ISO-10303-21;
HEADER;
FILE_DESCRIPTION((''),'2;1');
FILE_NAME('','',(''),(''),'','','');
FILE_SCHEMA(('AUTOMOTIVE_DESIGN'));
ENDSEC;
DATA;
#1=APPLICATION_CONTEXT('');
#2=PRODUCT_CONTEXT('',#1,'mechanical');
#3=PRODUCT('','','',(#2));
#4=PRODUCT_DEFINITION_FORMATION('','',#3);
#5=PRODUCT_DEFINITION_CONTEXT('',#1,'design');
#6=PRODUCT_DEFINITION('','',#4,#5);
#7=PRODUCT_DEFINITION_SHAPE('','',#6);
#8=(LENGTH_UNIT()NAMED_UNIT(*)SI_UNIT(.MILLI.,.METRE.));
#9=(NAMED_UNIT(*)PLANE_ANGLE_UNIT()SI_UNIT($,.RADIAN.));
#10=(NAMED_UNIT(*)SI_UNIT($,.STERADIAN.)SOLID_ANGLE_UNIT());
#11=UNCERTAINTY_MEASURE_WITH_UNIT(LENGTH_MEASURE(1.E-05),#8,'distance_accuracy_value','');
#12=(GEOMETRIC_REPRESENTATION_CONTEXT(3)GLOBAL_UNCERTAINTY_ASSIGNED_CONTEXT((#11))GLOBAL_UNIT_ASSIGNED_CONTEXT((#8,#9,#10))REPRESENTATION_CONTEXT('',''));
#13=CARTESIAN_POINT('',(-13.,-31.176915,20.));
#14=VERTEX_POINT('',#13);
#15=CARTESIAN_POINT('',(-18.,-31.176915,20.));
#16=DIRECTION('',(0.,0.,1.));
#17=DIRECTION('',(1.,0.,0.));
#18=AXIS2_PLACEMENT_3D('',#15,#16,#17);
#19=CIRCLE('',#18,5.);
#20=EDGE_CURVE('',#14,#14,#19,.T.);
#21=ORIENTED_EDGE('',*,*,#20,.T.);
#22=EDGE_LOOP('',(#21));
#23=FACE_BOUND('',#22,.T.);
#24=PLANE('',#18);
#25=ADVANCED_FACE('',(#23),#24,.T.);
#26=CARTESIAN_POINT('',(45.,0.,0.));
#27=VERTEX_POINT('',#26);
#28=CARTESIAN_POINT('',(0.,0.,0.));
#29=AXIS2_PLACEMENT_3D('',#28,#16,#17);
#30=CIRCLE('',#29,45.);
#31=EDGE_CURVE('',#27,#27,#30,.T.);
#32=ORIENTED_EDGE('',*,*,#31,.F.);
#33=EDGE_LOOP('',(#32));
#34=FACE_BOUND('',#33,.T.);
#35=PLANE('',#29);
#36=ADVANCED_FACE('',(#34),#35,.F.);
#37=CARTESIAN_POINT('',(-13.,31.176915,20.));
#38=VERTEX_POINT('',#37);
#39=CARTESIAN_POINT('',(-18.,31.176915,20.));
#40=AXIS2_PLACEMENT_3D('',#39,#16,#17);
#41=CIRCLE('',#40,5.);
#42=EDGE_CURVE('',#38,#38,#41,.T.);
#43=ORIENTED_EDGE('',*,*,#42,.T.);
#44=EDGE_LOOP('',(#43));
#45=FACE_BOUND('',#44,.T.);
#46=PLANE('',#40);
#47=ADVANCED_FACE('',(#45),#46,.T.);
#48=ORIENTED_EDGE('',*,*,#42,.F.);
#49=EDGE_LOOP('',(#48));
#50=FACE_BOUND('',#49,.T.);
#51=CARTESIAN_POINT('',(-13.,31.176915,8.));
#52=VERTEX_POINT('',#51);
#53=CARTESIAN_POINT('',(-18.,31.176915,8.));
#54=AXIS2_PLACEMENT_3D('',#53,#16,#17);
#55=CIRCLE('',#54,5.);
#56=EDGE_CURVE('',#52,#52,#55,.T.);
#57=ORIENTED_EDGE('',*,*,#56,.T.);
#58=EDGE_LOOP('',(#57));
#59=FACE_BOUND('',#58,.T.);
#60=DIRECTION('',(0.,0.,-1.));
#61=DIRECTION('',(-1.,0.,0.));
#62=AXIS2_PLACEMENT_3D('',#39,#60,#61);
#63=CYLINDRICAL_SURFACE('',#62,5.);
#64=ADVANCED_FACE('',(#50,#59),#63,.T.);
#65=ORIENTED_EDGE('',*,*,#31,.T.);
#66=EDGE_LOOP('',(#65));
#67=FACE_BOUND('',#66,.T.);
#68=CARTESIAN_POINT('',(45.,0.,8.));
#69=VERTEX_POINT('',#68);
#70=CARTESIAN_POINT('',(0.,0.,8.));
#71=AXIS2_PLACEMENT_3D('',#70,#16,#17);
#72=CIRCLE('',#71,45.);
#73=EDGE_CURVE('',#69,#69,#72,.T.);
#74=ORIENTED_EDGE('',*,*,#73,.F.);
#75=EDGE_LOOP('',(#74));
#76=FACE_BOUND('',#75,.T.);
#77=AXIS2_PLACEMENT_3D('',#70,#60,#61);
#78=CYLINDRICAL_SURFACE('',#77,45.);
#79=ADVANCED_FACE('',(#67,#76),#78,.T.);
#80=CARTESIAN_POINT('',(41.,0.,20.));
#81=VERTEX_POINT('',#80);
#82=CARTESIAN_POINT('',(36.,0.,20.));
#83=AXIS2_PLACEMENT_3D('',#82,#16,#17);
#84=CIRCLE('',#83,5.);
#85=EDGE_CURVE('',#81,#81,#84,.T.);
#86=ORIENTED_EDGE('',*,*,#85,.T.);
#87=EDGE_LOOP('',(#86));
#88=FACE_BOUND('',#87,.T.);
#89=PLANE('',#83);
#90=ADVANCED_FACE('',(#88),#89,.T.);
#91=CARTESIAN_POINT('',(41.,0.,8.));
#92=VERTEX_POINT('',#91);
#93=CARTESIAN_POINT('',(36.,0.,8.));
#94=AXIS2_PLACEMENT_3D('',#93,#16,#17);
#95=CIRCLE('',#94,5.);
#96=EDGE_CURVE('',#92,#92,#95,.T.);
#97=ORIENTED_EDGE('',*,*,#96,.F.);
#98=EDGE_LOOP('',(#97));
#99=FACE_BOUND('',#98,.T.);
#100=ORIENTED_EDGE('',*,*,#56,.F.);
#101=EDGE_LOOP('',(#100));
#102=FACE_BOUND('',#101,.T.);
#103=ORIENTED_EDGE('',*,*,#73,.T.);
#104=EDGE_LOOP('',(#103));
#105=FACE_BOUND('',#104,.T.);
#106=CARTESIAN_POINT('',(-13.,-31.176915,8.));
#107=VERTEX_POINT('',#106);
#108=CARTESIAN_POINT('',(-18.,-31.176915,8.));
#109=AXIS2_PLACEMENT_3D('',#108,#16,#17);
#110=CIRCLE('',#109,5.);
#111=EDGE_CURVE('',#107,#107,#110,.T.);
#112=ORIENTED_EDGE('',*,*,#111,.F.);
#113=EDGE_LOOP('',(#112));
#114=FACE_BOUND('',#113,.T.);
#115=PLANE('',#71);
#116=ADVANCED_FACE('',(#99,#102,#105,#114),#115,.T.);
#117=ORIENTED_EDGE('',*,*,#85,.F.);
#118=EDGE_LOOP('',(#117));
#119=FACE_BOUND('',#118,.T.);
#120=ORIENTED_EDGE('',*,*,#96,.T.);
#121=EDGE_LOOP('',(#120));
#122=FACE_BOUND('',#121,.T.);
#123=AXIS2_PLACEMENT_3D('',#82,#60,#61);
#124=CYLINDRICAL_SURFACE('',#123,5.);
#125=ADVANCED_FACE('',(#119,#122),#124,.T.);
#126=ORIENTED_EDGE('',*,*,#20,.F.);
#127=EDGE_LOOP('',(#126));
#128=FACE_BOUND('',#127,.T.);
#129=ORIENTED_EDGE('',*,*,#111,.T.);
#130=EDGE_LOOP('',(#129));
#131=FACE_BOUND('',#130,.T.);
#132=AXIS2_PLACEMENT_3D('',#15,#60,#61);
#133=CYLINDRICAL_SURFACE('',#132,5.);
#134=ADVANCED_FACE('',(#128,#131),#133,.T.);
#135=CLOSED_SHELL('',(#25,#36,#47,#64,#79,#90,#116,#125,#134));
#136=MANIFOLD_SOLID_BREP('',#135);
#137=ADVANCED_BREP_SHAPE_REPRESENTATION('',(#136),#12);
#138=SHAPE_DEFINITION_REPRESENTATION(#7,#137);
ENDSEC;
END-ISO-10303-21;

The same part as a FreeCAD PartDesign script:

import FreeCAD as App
import Part
import Sketcher

V = App.Vector

doc = App.newDocument("Part")
body = doc.addObject("PartDesign::Body", "Body")

# Sketch on XY plane
sketch1 = doc.addObject("Sketcher::SketchObject", "Sketch")
body.addObject(sketch1)
sketch1.AttachmentSupport = (doc.XY_Plane, [""])
sketch1.MapMode = "FlatFace"
sketch1.addGeometry(Part.Circle(V(0, 0, 0), V(0, 0, 1), 45), False)
sketch1.addConstraint([
    Sketcher.Constraint("Coincident", 0, 3, -1, 1),
    Sketcher.Constraint("Diameter", 0, 90.0),
])
pad1 = doc.addObject("PartDesign::Pad", "Pad")
body.addObject(pad1)
pad1.Profile = sketch1
pad1.Length = 8

# Sketch on XY plane
sketch2 = doc.addObject("Sketcher::SketchObject", "Sketch001")
body.addObject(sketch2)
sketch2.AttachmentSupport = (doc.XY_Plane, [""])
sketch2.MapMode = "FlatFace"
sketch2.AttachmentOffset = App.Placement(V(0, 0, 8), App.Rotation())
sketch2.addGeometry([
    Part.Circle(V(36, 0, 0), V(0, 0, 1), 5),
    Part.Circle(V(-18, 31.176915, 0), V(0, 0, 1), 5),
    Part.Circle(V(-18, -31.176915, 0), V(0, 0, 1), 5),
], False)
sketch2.addConstraint([
    Sketcher.Constraint("Equal", 0, 1),
    Sketcher.Constraint("Equal", 1, 2),
    Sketcher.Constraint("Symmetric", 1, 3, 2, 3, -1),
    Sketcher.Constraint("PointOnObject", 0, 3, -1),
    Sketcher.Constraint("Diameter", 0, 10.0),
    Sketcher.Constraint("DistanceX", -1, 1, 0, 3, 36.0),
    Sketcher.Constraint("DistanceX", 1, 3, -1, 1, 18.0),
    Sketcher.Constraint("DistanceY", 2, 3, 1, 3, 62.353829),
])
pad2 = doc.addObject("PartDesign::Pad", "Pad001")
body.addObject(pad2)
pad2.Profile = sketch2
pad2.Length = 12

doc.recompute()
